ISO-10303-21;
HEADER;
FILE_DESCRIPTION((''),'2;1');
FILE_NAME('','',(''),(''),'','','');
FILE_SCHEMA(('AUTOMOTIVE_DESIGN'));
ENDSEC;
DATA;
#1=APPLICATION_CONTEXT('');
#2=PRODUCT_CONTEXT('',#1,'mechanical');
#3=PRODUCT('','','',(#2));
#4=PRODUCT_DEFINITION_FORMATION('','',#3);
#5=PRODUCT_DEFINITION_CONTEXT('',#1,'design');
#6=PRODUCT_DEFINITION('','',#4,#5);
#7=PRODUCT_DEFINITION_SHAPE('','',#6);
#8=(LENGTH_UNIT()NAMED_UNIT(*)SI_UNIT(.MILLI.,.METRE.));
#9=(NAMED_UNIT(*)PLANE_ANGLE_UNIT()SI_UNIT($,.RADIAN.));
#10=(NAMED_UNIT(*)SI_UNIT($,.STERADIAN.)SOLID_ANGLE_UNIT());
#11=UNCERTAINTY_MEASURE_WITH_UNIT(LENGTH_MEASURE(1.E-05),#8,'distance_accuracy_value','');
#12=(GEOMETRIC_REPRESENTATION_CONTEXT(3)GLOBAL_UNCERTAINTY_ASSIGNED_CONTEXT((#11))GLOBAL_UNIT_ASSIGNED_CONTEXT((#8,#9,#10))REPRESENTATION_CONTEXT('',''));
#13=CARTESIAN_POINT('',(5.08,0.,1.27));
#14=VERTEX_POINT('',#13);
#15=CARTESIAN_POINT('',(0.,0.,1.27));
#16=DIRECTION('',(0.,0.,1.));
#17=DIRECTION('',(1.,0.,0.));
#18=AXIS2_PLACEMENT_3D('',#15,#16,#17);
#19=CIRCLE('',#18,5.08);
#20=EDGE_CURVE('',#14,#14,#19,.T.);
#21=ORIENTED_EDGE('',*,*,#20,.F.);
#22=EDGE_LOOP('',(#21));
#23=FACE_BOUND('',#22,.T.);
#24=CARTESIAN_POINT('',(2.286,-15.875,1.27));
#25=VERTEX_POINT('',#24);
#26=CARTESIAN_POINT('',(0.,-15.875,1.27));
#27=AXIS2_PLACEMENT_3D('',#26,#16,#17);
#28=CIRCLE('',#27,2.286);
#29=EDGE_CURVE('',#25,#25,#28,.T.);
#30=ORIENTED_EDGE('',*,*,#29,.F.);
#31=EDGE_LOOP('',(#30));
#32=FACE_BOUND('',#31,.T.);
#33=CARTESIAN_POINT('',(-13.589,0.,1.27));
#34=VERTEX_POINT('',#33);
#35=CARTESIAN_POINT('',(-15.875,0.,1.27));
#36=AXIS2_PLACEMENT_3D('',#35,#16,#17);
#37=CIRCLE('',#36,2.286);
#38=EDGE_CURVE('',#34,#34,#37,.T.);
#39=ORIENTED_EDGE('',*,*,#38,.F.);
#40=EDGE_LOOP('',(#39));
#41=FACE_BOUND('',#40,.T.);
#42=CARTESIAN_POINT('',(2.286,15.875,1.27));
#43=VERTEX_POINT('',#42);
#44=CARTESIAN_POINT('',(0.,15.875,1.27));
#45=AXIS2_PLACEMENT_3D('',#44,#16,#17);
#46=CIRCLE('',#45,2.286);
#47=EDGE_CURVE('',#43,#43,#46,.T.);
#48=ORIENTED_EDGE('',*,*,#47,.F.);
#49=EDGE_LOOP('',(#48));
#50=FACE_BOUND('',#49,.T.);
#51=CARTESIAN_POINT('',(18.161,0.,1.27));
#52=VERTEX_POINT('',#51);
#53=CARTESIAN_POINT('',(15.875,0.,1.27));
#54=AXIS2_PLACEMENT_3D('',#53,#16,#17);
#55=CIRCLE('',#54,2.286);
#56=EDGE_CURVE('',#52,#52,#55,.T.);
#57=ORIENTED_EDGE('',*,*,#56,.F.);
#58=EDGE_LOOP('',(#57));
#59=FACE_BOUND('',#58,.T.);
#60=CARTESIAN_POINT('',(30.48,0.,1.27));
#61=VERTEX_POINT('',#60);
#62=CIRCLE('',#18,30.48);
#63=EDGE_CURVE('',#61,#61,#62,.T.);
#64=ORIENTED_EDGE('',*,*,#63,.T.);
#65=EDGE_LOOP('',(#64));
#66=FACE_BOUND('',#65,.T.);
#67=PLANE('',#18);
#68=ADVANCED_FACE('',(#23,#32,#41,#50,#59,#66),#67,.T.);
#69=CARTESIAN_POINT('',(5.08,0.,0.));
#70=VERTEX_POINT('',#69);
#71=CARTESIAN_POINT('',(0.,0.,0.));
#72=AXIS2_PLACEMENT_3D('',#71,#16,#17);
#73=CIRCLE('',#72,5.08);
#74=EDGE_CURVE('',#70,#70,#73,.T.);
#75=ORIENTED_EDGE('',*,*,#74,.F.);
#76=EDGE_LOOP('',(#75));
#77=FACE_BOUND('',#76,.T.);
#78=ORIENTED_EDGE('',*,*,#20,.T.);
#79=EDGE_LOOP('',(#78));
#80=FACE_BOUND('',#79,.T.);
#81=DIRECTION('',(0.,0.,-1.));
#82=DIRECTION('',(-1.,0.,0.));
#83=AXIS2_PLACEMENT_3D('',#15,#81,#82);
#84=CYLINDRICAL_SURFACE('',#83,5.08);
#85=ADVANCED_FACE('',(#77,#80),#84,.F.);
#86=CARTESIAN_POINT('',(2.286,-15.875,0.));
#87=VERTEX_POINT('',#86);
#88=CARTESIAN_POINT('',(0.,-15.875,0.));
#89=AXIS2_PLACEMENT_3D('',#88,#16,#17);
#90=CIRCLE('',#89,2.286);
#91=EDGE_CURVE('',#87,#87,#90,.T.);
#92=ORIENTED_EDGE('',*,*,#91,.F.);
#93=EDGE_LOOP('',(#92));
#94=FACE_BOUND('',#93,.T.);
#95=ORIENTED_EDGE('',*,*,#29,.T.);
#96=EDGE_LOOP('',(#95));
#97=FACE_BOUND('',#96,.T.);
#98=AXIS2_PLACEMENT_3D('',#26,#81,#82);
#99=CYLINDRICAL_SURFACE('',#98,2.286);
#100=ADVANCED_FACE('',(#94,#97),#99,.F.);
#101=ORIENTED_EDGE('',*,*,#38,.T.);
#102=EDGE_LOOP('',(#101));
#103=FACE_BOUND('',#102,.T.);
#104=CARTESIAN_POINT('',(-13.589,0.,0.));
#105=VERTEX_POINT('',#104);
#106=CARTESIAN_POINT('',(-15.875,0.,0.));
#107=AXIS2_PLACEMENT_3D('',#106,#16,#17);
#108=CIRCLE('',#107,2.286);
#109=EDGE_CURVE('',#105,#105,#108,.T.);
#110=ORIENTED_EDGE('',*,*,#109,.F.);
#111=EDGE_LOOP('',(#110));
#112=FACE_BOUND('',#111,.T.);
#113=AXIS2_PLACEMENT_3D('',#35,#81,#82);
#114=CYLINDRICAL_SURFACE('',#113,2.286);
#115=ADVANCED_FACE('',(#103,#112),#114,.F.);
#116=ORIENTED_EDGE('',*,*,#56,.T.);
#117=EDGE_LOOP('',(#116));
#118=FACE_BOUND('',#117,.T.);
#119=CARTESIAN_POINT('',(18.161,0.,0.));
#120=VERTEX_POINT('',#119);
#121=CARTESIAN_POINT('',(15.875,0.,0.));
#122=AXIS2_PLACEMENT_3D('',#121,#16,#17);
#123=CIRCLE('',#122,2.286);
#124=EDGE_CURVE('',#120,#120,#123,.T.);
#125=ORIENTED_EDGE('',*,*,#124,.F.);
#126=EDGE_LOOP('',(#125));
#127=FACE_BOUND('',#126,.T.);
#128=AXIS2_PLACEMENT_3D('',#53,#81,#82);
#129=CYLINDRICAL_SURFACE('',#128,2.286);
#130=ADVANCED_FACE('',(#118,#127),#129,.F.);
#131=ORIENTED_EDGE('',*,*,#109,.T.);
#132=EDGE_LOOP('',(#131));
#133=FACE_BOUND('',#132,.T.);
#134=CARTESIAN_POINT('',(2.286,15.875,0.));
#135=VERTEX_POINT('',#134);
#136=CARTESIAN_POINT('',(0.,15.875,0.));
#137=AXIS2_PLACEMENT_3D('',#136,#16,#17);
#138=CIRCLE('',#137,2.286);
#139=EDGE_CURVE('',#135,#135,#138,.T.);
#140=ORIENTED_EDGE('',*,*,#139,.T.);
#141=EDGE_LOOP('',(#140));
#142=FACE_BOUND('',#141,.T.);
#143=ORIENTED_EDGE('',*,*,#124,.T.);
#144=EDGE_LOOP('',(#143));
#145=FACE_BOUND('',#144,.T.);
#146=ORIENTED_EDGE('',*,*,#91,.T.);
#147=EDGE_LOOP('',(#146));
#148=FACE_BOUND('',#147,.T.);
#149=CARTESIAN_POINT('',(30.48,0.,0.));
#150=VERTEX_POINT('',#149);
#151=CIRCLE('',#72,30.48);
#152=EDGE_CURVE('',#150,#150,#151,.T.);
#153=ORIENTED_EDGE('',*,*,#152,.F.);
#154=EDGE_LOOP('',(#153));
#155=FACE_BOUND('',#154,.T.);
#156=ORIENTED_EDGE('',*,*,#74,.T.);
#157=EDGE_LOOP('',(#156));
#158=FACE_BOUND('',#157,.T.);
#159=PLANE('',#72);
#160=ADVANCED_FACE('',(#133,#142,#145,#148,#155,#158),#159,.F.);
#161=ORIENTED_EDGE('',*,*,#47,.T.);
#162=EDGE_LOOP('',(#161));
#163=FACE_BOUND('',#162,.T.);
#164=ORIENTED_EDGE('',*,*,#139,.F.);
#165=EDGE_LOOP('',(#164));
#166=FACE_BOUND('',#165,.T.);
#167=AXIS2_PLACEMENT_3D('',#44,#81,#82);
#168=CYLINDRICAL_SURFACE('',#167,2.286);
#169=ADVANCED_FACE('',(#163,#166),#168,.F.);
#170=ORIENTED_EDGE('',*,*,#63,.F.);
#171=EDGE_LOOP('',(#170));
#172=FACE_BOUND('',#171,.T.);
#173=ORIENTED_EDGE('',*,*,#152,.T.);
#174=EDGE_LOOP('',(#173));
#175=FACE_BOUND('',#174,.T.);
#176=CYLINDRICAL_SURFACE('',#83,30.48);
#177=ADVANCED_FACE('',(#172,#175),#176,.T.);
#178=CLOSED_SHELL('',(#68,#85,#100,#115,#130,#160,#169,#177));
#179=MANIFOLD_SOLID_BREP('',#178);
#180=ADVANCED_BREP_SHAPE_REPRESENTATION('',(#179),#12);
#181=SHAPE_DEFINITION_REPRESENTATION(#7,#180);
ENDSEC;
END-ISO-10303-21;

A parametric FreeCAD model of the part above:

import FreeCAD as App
import Part
import Sketcher

V = App.Vector
Q = App.Units.Quantity

doc = App.newDocument("Part")
body = doc.addObject("PartDesign::Body", "Body")

sketch1 = body.newObject("Sketcher::SketchObject", "Sketch")
sketch1.AttachmentSupport = (doc.getObject("XY_Plane"), [""])
sketch1.MapMode = "FlatFace"
sketch1.addGeometry([
    Part.Circle(V(0, 0, 0), V(0, 0, 1), 30.5),
    Part.Circle(V(0, -15.9, 0), V(0, 0, 1), 2.3),
    Part.Circle(V(-15.9, 0, 0), V(0, 0, 1), 2.3),
    Part.Circle(V(0, 15.9, 0), V(0, 0, 1), 2.3),
    Part.Circle(V(0, 0, 0), V(0, 0, 1), 5.1),
    Part.Circle(V(15.9, 0, 0), V(0, 0, 1), 2.3),
], False)
sketch1.addConstraint([
    Sketcher.Constraint("Coincident", 0, 3, -1, 1),
    Sketcher.Constraint("Coincident", 4, 3, -1, 1),
    Sketcher.Constraint("Equal", 1, 2),
    Sketcher.Constraint("Equal", 2, 3),
    Sketcher.Constraint("Equal", 3, 5),
    Sketcher.Constraint("Symmetric", 1, 3, 3, 3, -1, 1),
    Sketcher.Constraint("Symmetric", 2, 3, 5, 3, -1, 1),
    Sketcher.Constraint("PointOnObject", 1, 3, -2),
    Sketcher.Constraint("PointOnObject", 2, 3, -1),
    Sketcher.Constraint("Diameter", 0, Q("2.4 in")),
    Sketcher.Constraint("Diameter", 4, Q("0.4 in")),
    Sketcher.Constraint("Diameter", 1, Q("0.18 in")),
    Sketcher.Constraint("DistanceY", 1, 3, 3, 3, Q("1.25 in")),
    Sketcher.Constraint("DistanceX", 2, 3, 5, 3, Q("1.25 in")),
])
pad1 = body.newObject("PartDesign::Pad", "Pad")
pad1.Profile = sketch1
pad1.Length = Q("0.05 in")

doc.recompute()
